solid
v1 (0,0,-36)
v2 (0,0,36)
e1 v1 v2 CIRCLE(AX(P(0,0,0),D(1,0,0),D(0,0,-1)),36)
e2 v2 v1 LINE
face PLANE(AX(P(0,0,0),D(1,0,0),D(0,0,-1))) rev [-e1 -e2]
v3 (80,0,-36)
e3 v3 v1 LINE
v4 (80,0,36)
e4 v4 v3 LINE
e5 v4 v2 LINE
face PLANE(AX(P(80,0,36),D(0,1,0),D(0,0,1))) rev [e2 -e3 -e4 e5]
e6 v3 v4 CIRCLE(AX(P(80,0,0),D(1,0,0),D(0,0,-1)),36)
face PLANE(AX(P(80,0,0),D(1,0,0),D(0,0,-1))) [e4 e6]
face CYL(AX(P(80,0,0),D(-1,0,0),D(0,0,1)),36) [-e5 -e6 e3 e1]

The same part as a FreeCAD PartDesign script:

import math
import FreeCAD as App
import Part
import Sketcher
from FreeCAD import Vector
Q = App.Units.Quantity

doc = App.newDocument("Part")
body = doc.addObject("PartDesign::Body", "Body")

# Sketch on YZ plane
sketch1 = body.newObject("Sketcher::SketchObject", "Sketch")
sketch1.AttachmentSupport = (doc.getObject("YZ_Plane"), [""])
sketch1.MapMode = "FlatFace"
sketch1.addGeometry(Part.LineSegment(Vector(0, 36, 0), Vector(0, -36, 0)), False)
sketch1.addGeometry(Part.ArcOfCircle(Part.Circle(Vector(0, 0, 0), Vector(0, 0, 1), 36), math.radians(-90), math.radians(90)), False)
sketch1.addConstraint(Sketcher.Constraint("Coincident", 0, 1, 1, 2))
sketch1.addConstraint(Sketcher.Constraint("Coincident", 1, 1, 0, 2))
sketch1.addConstraint(Sketcher.Constraint("Vertical", 0))
sketch1.addConstraint(Sketcher.Constraint("Coincident", 1, 3, -1, 1))
sketch1.addConstraint(Sketcher.Constraint("PointOnObject", 0, 1, -2))
sketch1.addConstraint(Sketcher.Constraint("Radius", 1, Q("36 mm")))
pad1 = body.newObject("PartDesign::Pad", "Pad")
pad1.Profile = sketch1
pad1.Length = 80

doc.recompute()
